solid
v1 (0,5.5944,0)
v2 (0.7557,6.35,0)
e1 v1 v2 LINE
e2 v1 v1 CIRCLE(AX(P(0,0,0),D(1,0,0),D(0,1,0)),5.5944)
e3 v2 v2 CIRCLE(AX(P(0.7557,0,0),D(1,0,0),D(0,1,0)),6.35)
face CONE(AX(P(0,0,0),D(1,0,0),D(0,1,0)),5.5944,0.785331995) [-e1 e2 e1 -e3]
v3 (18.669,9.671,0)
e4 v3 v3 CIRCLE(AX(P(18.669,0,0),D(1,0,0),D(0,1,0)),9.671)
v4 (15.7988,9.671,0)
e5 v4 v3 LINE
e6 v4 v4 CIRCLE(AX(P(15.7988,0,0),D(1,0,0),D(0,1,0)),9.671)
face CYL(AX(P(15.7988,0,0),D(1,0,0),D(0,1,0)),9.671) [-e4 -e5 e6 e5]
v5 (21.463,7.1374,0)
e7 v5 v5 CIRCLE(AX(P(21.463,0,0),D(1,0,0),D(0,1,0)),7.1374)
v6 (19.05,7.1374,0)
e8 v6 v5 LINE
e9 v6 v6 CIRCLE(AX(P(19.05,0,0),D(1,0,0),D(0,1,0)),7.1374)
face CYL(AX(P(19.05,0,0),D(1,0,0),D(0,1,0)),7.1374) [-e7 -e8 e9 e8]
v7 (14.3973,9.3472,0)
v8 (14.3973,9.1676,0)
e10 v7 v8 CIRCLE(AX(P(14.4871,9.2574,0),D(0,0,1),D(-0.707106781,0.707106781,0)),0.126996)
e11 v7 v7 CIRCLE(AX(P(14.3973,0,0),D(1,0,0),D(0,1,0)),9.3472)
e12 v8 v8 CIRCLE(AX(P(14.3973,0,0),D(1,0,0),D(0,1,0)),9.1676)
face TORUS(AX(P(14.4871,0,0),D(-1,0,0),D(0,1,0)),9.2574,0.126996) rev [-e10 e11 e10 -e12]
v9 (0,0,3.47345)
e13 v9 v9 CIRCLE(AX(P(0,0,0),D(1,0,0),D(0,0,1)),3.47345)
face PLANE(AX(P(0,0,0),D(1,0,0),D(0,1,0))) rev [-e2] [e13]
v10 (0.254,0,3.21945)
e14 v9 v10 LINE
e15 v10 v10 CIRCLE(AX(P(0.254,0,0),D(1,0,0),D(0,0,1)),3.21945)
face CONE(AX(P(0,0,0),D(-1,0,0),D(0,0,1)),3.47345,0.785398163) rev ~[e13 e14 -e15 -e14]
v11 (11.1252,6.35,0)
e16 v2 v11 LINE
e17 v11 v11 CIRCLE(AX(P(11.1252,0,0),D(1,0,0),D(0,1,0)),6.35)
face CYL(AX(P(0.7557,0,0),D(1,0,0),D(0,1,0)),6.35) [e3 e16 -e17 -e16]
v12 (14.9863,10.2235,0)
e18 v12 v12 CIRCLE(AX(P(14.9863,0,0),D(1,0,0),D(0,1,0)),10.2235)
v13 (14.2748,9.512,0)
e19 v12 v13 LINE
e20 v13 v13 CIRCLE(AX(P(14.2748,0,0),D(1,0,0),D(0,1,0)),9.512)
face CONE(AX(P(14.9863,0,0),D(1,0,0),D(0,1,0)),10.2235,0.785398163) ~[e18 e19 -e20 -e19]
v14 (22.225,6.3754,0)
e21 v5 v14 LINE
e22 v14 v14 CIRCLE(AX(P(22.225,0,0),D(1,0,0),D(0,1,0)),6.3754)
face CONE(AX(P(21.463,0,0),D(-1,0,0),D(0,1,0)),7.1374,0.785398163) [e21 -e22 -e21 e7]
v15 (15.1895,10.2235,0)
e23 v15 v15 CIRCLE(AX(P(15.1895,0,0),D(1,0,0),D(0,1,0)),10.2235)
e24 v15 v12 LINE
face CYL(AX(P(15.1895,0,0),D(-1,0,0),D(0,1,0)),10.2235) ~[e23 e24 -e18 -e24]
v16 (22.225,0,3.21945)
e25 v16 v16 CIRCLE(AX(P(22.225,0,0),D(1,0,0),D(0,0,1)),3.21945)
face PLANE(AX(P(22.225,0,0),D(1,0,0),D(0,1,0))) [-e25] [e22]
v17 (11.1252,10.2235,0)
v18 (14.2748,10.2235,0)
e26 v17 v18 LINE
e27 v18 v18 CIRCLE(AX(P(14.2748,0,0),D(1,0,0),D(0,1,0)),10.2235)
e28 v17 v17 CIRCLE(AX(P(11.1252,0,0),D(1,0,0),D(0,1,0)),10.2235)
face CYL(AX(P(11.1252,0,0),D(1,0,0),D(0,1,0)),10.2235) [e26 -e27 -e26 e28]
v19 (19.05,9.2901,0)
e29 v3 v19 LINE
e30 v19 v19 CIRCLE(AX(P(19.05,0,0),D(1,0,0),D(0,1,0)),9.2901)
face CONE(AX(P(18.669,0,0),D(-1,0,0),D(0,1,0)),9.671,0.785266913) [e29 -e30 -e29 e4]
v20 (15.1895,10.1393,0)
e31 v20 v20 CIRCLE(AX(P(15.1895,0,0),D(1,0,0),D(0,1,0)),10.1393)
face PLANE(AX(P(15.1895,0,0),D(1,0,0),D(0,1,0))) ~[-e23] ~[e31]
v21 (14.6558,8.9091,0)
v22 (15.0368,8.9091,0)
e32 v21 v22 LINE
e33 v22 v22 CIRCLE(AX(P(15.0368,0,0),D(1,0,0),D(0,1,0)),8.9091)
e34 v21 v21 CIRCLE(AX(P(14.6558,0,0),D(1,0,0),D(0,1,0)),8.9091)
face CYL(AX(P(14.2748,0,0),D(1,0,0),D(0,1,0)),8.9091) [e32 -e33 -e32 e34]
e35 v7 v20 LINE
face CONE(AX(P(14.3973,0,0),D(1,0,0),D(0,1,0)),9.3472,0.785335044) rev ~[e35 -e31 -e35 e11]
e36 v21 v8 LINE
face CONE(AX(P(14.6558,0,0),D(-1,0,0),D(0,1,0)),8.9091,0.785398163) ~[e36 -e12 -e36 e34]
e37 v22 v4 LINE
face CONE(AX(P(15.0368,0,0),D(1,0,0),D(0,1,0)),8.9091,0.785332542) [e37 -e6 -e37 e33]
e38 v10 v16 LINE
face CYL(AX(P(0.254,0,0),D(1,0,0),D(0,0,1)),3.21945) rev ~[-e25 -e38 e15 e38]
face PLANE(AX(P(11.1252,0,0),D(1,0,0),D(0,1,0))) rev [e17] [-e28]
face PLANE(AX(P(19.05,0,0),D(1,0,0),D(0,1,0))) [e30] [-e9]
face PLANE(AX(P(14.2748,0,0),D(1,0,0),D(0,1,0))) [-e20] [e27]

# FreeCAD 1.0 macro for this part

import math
import FreeCAD as App
import Part
import Sketcher
from FreeCAD import Vector
Q = App.Units.Quantity


def add_polygon(sketch, points):
    """Adds a closed chain of lines whose ends are joined by coincident constraints."""
    first, n = sketch.GeometryCount, len(points)
    for a, b in zip(points, points[1:] + points[:1]):
        sketch.addGeometry(Part.LineSegment(App.Vector(*a, 0), App.Vector(*b, 0)), False)
    for i in range(n):
        sketch.addConstraint(Sketcher.Constraint("Coincident", first + i, 2, first + (i + 1) % n, 1))

doc = App.newDocument("Part")
params = doc.addObject("Spreadsheet::Sheet", "Params")
for row, (alias, value) in enumerate([
    ("sketch1_height", "0.25 in"),
    ("sketch1_width", "0.438 in"),
    ("revolution_angle", "360 deg"),
    ("sketch2_width", "0.03 in"),
    ("sketch2_width2", "0.312 in"),
    ("sketch2_width3", "0.113 in"),
    ("sketch2_width4", "0.124 in"),
    ("revolution2_angle", "360 deg"),
    ("sketch3_width", "0.125 in"),
    ("sketch3_width2", "0.095 in"),
    ("sketch3_height", "0.251 in"),
    ("revolution3_angle", "360 deg"),
    ("hole_diameter", "0.2535 in"),
    ("hole_depth", "0.875 in"),
    ("hole_csink_diameter", "0.2735 in"),
    ("sketch5_radius", "0.005 in"),
    ("sketch5_width", "0.03 in"),
    ("sketch5_height", "0.01 in"),
    ("sketch5_width2", "0.015 in"),
    ("sketch5_width3", "0.008 in"),
    ("revolution4_angle", "360 deg"),
], start=1):
    params.set(f"A{row}", alias)
    params.set(f"B{row}", "=" + value)
    params.setAlias(f"B{row}", alias)

body = doc.addObject("PartDesign::Body", "Body")

# Sketch on XY plane
sketch1 = body.newObject("Sketcher::SketchObject", "Sketch")
sketch1.AttachmentSupport = (doc.getObject("XY_Plane"), [""])
sketch1.MapMode = "FlatFace"
add_polygon(sketch1, [(0, 0), (11.1252, 0), (11.1252, 6.35), (0.7557, 6.35), (0, 5.5944)])  # lines 0-4
sketch1.addConstraint([
    Sketcher.Constraint("Horizontal", 0),
    Sketcher.Constraint("Vertical", 1),
    Sketcher.Constraint("Horizontal", 2),
    Sketcher.Constraint("Vertical", 4),
    Sketcher.Constraint("Coincident", 4, 2, -1, 1),
    Sketcher.Constraint("DistanceY", 1, 1, 1, 2, Q("0.25 in")),
    Sketcher.Constraint("DistanceX", 0, 1, 0, 2, Q("0.438 in")),
    Sketcher.Constraint("DistanceX", 2, 2, 2, 1, 10.3695),
    Sketcher.Constraint("DistanceY", 4, 2, 4, 1, 5.5944),
])
sketch1.setExpression("Constraints[10]", "Params.sketch1_height")
sketch1.setExpression("Constraints[11]", "Params.sketch1_width")
revolution = body.newObject("PartDesign::Revolution", "Revolution")
revolution.Profile = sketch1
revolution.ReferenceAxis = (sketch1, ["H_Axis"])
revolution.setExpression("Angle", "Params.revolution_angle")

# Sketch on XY plane
sketch2 = body.newObject("Sketcher::SketchObject", "Sketch001")
sketch2.AttachmentSupport = (doc.getObject("XY_Plane"), [""])
sketch2.MapMode = "FlatFace"
add_polygon(sketch2, [(11.1252, 0), (19.05, 0), (19.05, 9.2901), (18.669, 9.671), (15.7988, 9.671), (15.0368, 8.9091), (14.2748, 8.9091), (14.2748, 10.2235), (11.1252, 10.2235)])  # lines 0-8
sketch2.addConstraint([
    Sketcher.Constraint("Horizontal", 0),
    Sketcher.Constraint("Vertical", 1),
    Sketcher.Constraint("Horizontal", 3),
    Sketcher.Constraint("Horizontal", 5),
    Sketcher.Constraint("Vertical", 6),
    Sketcher.Constraint("Horizontal", 7),
    Sketcher.Constraint("Vertical", 8),
    Sketcher.Constraint("PointOnObject", 0, 2, -1),
    Sketcher.Constraint("Perpendicular", 2, 4),
    Sketcher.Constraint("DistanceX", 5, 2, 5, 1, Q("0.03 in")),
    Sketcher.Constraint("DistanceX", 0, 1, 0, 2, Q("0.312 in")),
    Sketcher.Constraint("DistanceX", 3, 2, 3, 1, Q("0.113 in")),
    Sketcher.Constraint("DistanceX", 7, 2, 7, 1, Q("0.124 in")),
    Sketcher.Constraint("DistanceX", -1, 1, 0, 2, Q("0.75 in")),
    Sketcher.Constraint("DistanceX", 4, 2, 3, 2, Q("0.03 in")),
    Sketcher.Constraint("DistanceY", 4, 2, 3, 2, Q("0.03 in")),
    Sketcher.Constraint("DistanceY", 8, 2, 8, 1, Q("0.4025 in")),
    Sketcher.Constraint("DistanceY", 1, 1, 1, 2, 9.29),
])
sketch2.setExpression("Constraints[18]", "Params.sketch2_width")
sketch2.setExpression("Constraints[19]", "Params.sketch2_width2")
sketch2.setExpression("Constraints[20]", "Params.sketch2_width3")
sketch2.setExpression("Constraints[21]", "Params.sketch2_width4")
revolution2 = body.newObject("PartDesign::Revolution", "Revolution001")
revolution2.Profile = sketch2
revolution2.ReferenceAxis = (sketch2, ["H_Axis"])
revolution2.setExpression("Angle", "Params.revolution2_angle")

# Sketch on XY plane
sketch3 = body.newObject("Sketcher::SketchObject", "Sketch002")
sketch3.AttachmentSupport = (doc.getObject("XY_Plane"), [""])
sketch3.MapMode = "FlatFace"
add_polygon(sketch3, [(19.05, 0), (22.225, 0), (22.225, 6.3754), (21.463, 7.1374), (19.05, 7.1374)])  # lines 0-4
sketch3.addConstraint([
    Sketcher.Constraint("Horizontal", 0),
    Sketcher.Constraint("Vertical", 1),
    Sketcher.Constraint("Horizontal", 3),
    Sketcher.Constraint("Vertical", 4),
    Sketcher.Constraint("PointOnObject", 0, 2, -1),
    Sketcher.Constraint("Angle", 2, Q("135 deg")),
    Sketcher.Constraint("DistanceX", 0, 1, 0, 2, Q("0.125 in")),
    Sketcher.Constraint("DistanceX", 3, 2, 3, 1, Q("0.095 in")),
    Sketcher.Constraint("DistanceY", 1, 1, 1, 2, Q("0.251 in")),
    Sketcher.Constraint("DistanceX", -1, 1, 3, 2, Q("0.75 in")),
])
sketch3.setExpression("Constraints[11]", "Params.sketch3_width")
sketch3.setExpression("Constraints[12]", "Params.sketch3_width2")
sketch3.setExpression("Constraints[13]", "Params.sketch3_height")
revolution3 = body.newObject("PartDesign::Revolution", "Revolution002")
revolution3.Profile = sketch3
revolution3.ReferenceAxis = (sketch3, ["H_Axis"])
revolution3.setExpression("Angle", "Params.revolution3_angle")

# Sketch on YZ plane
sketch4 = body.newObject("Sketcher::SketchObject", "Sketch003")
sketch4.AttachmentSupport = (doc.getObject("YZ_Plane"), [""])
sketch4.MapMode = "FlatFace"
sketch4.addGeometry(Part.Circle(Vector(0, 0, 0), Vector(0, 0, 1), 3.21945), False)
sketch4.addConstraint([
    Sketcher.Constraint("Coincident", 0, 3, -1, 1),
    Sketcher.Constraint("Diameter", 0, Q("0.2535 in")),
])
doc.recompute()
hole = body.newObject("PartDesign::Hole", "Hole")
hole.Profile = sketch4
hole.ThreadType = "None"
hole.setExpression("Diameter", "Params.hole_diameter")
hole.DepthType = "Dimension"
hole.setExpression("Depth", "Params.hole_depth")
hole.DrillPoint = "Flat"
hole.HoleCutType = "Countersink"
hole.setExpression("HoleCutDiameter", "Params.hole_csink_diameter")
hole.HoleCutCountersinkAngle = 90
hole.Reversed = True

# Sketch on XY plane
sketch5 = body.newObject("Sketcher::SketchObject", "Sketch004")
sketch5.AttachmentSupport = (doc.getObject("XY_Plane"), [""])
sketch5.MapMode = "FlatFace"
sketch5.addGeometry([
    Part.LineSegment(Vector(14.2748, 9.512, 0), Vector(14.2748, 8.655, 0)),  # 0
    Part.LineSegment(Vector(14.2748, 8.655, 0), Vector(15.0368, 8.655, 0)),  # 1
    Part.LineSegment(Vector(15.0368, 8.655, 0), Vector(15.0368, 8.9091, 0)),  # 2
    Part.LineSegment(Vector(15.0368, 8.9091, 0), Vector(14.6558, 8.9091, 0)),  # 3
    Part.LineSegment(Vector(14.6558, 8.9091, 0), Vector(14.3973, 9.1676, 0)),  # 4
    Part.ArcOfCircle(Part.Circle(Vector(14.4871, 9.2574, 0), Vector(0, 0, 1), 0.126996), math.radians(135), math.radians(225)),  # 5
    Part.LineSegment(Vector(14.3973, 9.3472, 0), Vector(15.1895, 10.1393, 0)),  # 6
    Part.LineSegment(Vector(15.1895, 10.1393, 0), Vector(15.1895, 10.2235, 0)),  # 7
    Part.LineSegment(Vector(15.1895, 10.2235, 0), Vector(14.9863, 10.2235, 0)),  # 8
    Part.LineSegment(Vector(14.9863, 10.2235, 0), Vector(14.2748, 9.512, 0)),  # 9
], False)
sketch5.addConstraint([
    Sketcher.Constraint("Coincident", 0, 2, 1, 1),
    Sketcher.Constraint("Coincident", 1, 2, 2, 1),
    Sketcher.Constraint("Coincident", 2, 2, 3, 1),
    Sketcher.Constraint("Coincident", 3, 2, 4, 1),
    Sketcher.Constraint("Tangent", 4, 2, 5, 2),
    Sketcher.Constraint("Tangent", 5, 1, 6, 1),
    Sketcher.Constraint("Coincident", 6, 2, 7, 1),
    Sketcher.Constraint("Coincident", 7, 2, 8, 1),
    Sketcher.Constraint("Coincident", 8, 2, 9, 1),
    Sketcher.Constraint("Coincident", 9, 2, 0, 1),
    Sketcher.Constraint("Vertical", 0),
    Sketcher.Constraint("Horizontal", 1),
    Sketcher.Constraint("Vertical", 2),
    Sketcher.Constraint("Horizontal", 3),
    Sketcher.Constraint("Vertical", 7),
    Sketcher.Constraint("Horizontal", 8),
    Sketcher.Constraint("Perpendicular", 4, 6),
    Sketcher.Constraint("Parallel", 6, 9),
    Sketcher.Constraint("Vertical", 4, 2, 5, 1),
    Sketcher.Constraint("Radius", 5, Q("0.005 in")),
    Sketcher.Constraint("DistanceX", 1, 1, 1, 2, Q("0.03 in")),
    Sketcher.Constraint("DistanceY", 2, 1, 2, 2, Q("0.01 in")),
    Sketcher.Constraint("DistanceX", 3, 2, 3, 1, Q("0.015 in")),
    Sketcher.Constraint("DistanceX", 8, 2, 8, 1, Q("0.008 in")),
    Sketcher.Constraint("DistanceX", -1, 1, 8, 2, Q("0.59 in")),
    Sketcher.Constraint("DistanceX", -1, 1, 0, 2, Q("0.562 in")),
    Sketcher.Constraint("DistanceY", -1, 1, 5, 1, Q("0.368 in")),
    Sketcher.Constraint("Distance", 4, Q("0.0144 in")),
    Sketcher.Constraint("DistanceY", 0, 2, 0, 1, 0.857),
])
sketch5.setExpression("Constraints[19]", "Params.sketch5_radius")
sketch5.setExpression("Constraints[20]", "Params.sketch5_width")
sketch5.setExpression("Constraints[21]", "Params.sketch5_height")
sketch5.setExpression("Constraints[22]", "Params.sketch5_width2")
sketch5.setExpression("Constraints[23]", "Params.sketch5_width3")
revolution4 = body.newObject("PartDesign::Revolution", "Revolution003")
revolution4.Profile = sketch5
revolution4.ReferenceAxis = (sketch5, ["H_Axis"])
revolution4.setExpression("Angle", "Params.revolution4_angle")

doc.recompute()
